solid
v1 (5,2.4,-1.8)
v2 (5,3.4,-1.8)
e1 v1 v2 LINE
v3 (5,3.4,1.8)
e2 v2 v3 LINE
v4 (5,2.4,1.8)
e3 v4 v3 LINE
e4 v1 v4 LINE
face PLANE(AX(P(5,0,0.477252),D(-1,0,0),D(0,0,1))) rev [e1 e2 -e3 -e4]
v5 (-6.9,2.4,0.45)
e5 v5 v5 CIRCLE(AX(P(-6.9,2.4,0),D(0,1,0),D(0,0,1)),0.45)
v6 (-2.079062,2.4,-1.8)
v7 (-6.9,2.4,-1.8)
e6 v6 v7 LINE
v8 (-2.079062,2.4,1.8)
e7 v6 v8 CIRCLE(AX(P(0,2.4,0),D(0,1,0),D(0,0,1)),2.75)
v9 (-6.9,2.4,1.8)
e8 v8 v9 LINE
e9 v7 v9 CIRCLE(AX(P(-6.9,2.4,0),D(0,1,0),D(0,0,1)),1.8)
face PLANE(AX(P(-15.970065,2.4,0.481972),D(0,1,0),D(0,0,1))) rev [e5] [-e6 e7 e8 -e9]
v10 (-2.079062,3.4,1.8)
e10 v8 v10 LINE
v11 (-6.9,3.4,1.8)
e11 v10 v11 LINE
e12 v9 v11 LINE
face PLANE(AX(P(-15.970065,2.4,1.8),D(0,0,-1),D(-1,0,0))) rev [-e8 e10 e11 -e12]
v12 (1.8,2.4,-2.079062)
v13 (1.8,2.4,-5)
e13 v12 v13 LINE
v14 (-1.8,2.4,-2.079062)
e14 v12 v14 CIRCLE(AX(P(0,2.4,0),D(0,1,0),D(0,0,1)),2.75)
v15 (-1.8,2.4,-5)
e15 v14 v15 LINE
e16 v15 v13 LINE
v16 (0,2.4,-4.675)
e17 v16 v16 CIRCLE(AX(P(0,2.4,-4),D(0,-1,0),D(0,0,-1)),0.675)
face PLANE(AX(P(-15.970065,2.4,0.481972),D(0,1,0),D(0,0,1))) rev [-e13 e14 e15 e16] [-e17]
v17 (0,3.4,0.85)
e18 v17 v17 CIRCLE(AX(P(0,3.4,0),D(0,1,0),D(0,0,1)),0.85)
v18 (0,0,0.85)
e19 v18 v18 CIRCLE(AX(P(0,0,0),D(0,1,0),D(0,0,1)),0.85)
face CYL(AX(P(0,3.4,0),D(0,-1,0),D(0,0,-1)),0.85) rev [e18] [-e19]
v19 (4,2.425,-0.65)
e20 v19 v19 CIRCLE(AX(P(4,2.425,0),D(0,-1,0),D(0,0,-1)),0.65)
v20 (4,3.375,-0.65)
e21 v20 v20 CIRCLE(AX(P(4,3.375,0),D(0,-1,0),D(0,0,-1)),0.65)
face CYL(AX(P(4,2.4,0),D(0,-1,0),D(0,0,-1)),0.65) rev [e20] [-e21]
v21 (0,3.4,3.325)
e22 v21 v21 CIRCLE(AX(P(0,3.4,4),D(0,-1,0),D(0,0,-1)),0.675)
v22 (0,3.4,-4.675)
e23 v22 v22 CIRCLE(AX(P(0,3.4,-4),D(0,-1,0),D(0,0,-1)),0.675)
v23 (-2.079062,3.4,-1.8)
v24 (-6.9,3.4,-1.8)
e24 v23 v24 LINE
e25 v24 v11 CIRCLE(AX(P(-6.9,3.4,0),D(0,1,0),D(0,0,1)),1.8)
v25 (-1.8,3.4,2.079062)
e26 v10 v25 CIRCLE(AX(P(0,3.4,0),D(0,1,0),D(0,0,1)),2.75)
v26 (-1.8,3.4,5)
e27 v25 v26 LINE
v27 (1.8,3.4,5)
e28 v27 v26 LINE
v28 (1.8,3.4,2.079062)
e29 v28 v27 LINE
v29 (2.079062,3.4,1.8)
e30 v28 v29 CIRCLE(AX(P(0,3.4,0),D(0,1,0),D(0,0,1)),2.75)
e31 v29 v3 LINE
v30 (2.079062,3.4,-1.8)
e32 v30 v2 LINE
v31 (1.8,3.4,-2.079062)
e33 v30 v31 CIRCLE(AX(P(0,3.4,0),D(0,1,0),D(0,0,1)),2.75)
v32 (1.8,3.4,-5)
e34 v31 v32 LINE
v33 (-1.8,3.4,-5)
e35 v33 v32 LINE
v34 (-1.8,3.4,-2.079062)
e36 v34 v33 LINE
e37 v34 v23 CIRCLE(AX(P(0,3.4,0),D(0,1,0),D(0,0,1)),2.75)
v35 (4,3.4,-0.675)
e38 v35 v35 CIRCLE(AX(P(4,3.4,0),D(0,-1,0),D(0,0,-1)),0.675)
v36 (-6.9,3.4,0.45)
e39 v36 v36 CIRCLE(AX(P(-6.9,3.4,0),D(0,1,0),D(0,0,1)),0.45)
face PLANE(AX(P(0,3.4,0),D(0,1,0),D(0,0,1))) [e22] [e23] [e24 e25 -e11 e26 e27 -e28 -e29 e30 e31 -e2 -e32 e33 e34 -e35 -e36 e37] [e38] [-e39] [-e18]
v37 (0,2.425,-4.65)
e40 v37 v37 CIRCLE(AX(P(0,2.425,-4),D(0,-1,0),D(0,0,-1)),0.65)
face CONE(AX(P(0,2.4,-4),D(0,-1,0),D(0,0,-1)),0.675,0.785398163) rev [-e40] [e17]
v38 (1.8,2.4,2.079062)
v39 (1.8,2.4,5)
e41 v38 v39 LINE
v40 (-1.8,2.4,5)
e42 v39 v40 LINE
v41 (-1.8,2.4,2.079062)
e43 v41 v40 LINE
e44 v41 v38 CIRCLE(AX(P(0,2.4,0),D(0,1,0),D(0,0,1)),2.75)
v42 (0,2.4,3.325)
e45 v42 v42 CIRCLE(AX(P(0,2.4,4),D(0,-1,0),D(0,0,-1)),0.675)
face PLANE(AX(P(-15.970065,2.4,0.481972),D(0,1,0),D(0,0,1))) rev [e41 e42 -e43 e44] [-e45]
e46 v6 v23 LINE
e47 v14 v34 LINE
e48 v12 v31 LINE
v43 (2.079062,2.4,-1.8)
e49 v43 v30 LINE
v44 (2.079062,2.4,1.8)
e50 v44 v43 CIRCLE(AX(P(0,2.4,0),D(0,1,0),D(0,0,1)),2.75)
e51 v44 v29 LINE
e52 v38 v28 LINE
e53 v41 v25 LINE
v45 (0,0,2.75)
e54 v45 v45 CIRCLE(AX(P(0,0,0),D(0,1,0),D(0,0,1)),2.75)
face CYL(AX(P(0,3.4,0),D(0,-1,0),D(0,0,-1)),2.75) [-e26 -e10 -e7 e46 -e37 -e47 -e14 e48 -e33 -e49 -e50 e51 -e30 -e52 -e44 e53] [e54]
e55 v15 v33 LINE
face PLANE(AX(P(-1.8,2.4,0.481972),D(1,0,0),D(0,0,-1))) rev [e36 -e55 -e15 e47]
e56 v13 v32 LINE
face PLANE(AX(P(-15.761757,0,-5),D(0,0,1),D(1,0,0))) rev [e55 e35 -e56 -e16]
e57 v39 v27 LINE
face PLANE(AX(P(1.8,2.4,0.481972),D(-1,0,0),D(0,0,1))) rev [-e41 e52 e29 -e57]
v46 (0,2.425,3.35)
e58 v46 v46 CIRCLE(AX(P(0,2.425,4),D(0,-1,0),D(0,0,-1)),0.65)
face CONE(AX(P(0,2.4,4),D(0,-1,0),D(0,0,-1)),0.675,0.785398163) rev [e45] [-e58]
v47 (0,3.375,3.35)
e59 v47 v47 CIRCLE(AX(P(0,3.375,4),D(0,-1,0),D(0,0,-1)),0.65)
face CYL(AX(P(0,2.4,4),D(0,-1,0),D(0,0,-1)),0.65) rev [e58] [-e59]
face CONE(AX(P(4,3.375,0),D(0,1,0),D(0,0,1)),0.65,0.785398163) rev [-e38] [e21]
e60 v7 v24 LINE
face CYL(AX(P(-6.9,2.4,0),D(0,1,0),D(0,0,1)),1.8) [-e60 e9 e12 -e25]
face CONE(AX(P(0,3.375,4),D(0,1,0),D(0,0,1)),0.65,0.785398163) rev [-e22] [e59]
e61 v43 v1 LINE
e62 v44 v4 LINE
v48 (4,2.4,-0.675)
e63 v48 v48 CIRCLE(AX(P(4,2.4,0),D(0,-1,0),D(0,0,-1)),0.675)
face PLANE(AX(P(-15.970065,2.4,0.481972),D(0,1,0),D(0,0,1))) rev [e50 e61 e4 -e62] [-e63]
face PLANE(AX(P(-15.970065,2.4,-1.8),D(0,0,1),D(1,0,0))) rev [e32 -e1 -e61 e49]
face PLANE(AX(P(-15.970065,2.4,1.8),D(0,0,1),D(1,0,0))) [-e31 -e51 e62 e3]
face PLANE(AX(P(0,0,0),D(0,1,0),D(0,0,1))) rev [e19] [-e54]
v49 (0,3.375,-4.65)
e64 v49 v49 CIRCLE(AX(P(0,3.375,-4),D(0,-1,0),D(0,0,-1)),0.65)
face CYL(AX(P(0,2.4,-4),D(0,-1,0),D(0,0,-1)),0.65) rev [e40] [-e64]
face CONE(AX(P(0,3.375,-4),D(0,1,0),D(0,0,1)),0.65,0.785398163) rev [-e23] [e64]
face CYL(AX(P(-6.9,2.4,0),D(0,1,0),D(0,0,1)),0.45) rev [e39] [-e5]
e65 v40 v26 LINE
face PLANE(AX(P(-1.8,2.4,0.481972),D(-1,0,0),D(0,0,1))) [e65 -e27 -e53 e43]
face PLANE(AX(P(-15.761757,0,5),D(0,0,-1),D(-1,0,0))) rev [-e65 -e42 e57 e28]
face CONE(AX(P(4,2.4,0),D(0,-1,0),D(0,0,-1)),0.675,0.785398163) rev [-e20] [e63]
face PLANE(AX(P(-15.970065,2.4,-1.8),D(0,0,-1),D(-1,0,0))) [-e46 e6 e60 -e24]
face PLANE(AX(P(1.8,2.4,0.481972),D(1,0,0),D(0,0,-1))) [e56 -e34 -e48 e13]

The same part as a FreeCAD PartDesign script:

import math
import FreeCAD as App
import Part
import Sketcher


def add_polygon(sketch, points):
    """Adds a closed chain of lines whose ends are joined by coincident constraints."""
    first, n = sketch.GeometryCount, len(points)
    for a, b in zip(points, points[1:] + points[:1]):
        sketch.addGeometry(Part.LineSegment(App.Vector(*a, 0), App.Vector(*b, 0)), False)
    for i in range(n):
        sketch.addConstraint(Sketcher.Constraint("Coincident", first + i, 2, first + (i + 1) % n, 1))

doc = App.newDocument("Part")
body = doc.addObject("PartDesign::Body", "Body")

# Sketch on XZ plane
sketch1 = body.newObject("Sketcher::SketchObject", "Sketch")
sketch1.AttachmentSupport = (doc.getObject("XZ_Plane"), [""])
sketch1.MapMode = "FlatFace"
sketch1.addGeometry(Part.Circle(App.Vector(0, 0, 0), App.Vector(0, 0, 1), 2.8), False)
sketch1.addGeometry(Part.Circle(App.Vector(0, 0, 0), App.Vector(0, 0, 1), 0.8), False)
sketch1.addConstraint(Sketcher.Constraint("Coincident", 0, 3, -1, 1))
sketch1.addConstraint(Sketcher.Constraint("Coincident", 1, 3, -1, 1))
sketch1.addConstraint(Sketcher.Constraint("Diameter", 0, 5.5))
sketch1.addConstraint(Sketcher.Constraint("Diameter", 1, 1.7))
pad1 = body.newObject("PartDesign::Pad", "Pad")
pad1.Profile = sketch1
pad1.Length = 3.4
pad1.Reversed = True

# Sketch on XZ plane
sketch2 = body.newObject("Sketcher::SketchObject", "Sketch001")
sketch2.AttachmentSupport = (doc.getObject("XZ_Plane"), [""])
sketch2.MapMode = "FlatFace"
sketch2.AttachmentOffset = App.Placement(App.Vector(0, 0, -3.4), App.Rotation())
sketch2.addGeometry(Part.LineSegment(App.Vector(6.9, -1.8, 0), App.Vector(2.08, -1.8, 0)), False)
sketch2.addGeometry(Part.ArcOfCircle(Part.Circle(App.Vector(0, 0, 0), App.Vector(0, 0, 1), 2.75), math.radians(-41), math.radians(41)), False)
sketch2.addGeometry(Part.LineSegment(App.Vector(2.08, 1.8, 0), App.Vector(6.9, 1.8, 0)), False)
sketch2.addGeometry(Part.ArcOfCircle(Part.Circle(App.Vector(6.9, 0, 0), App.Vector(0, 0, 1), 1.8), math.radians(-90), math.radians(90)), False)
sketch2.addGeometry(Part.Circle(App.Vector(6.9, 0, 0), App.Vector(0, 0, 1), 0.45), False)
sketch2.addGeometry(Part.ArcOfCircle(Part.Circle(App.Vector(0, 0, 0), App.Vector(0, 0, 1), 2.75), math.radians(-131), math.radians(-49)), False)
sketch2.addGeometry(Part.LineSegment(App.Vector(1.8, -2.08, 0), App.Vector(1.8, -6.9, 0)), False)
sketch2.addGeometry(Part.ArcOfCircle(Part.Circle(App.Vector(0, -6.9, 0), App.Vector(0, 0, 1), 1.8), math.radians(180), math.radians(360)), False)
sketch2.addGeometry(Part.LineSegment(App.Vector(-1.8, -6.9, 0), App.Vector(-1.8, -2.08, 0)), False)
sketch2.addGeometry(Part.Circle(App.Vector(0, -6.9, 0), App.Vector(0, 0, 1), 0.45), False)
sketch2.addGeometry(Part.LineSegment(App.Vector(1.8, 6.9, 0), App.Vector(1.8, 2.08, 0)), False)
sketch2.addGeometry(Part.ArcOfCircle(Part.Circle(App.Vector(0, 0, 0), App.Vector(0, 0, 1), 2.75), math.radians(49), math.radians(131)), False)
sketch2.addGeometry(Part.LineSegment(App.Vector(-1.8, 2.08, 0), App.Vector(-1.8, 6.9, 0)), False)
sketch2.addGeometry(Part.ArcOfCircle(Part.Circle(App.Vector(0, 6.9, 0), App.Vector(0, 0, 1), 1.8), math.radians(0), math.radians(180)), False)
sketch2.addGeometry(Part.Circle(App.Vector(0, 6.9, 0), App.Vector(0, 0, 1), 0.45), False)
sketch2.addGeometry(Part.ArcOfCircle(Part.Circle(App.Vector(0, 0, 0), App.Vector(0, 0, 1), 2.75), math.radians(139), math.radians(221)), False)
sketch2.addGeometry(Part.LineSegment(App.Vector(-2.08, -1.8, 0), App.Vector(-6.9, -1.8, 0)), False)
sketch2.addGeometry(Part.ArcOfCircle(Part.Circle(App.Vector(-6.9, 0, 0), App.Vector(0, 0, 1), 1.8), math.radians(90), math.radians(270)), False)
sketch2.addGeometry(Part.LineSegment(App.Vector(-6.9, 1.8, 0), App.Vector(-2.08, 1.8, 0)), False)
sketch2.addGeometry(Part.Circle(App.Vector(-6.9, 0, 0), App.Vector(0, 0, 1), 0.45), False)
sketch2.addConstraint(Sketcher.Constraint("Coincident", 0, 2, 1, 1))
sketch2.addConstraint(Sketcher.Constraint("Coincident", 1, 2, 2, 1))
sketch2.addConstraint(Sketcher.Constraint("Tangent", 2, 2, 3, 2))
sketch2.addConstraint(Sketcher.Constraint("Tangent", 3, 1, 0, 1))
sketch2.addConstraint(Sketcher.Constraint("Coincident", 5, 2, 6, 1))
sketch2.addConstraint(Sketcher.Constraint("Tangent", 6, 2, 7, 2))
sketch2.addConstraint(Sketcher.Constraint("Tangent", 7, 1, 8, 1))
sketch2.addConstraint(Sketcher.Constraint("Coincident", 8, 2, 5, 1))
sketch2.addConstraint(Sketcher.Constraint("Coincident", 10, 2, 11, 1))
sketch2.addConstraint(Sketcher.Constraint("Coincident", 11, 2, 12, 1))
sketch2.addConstraint(Sketcher.Constraint("Tangent", 12, 2, 13, 2))
sketch2.addConstraint(Sketcher.Constraint("Tangent", 13, 1, 10, 1))
sketch2.addConstraint(Sketcher.Constraint("Coincident", 15, 2, 16, 1))
sketch2.addConstraint(Sketcher.Constraint("Tangent", 16, 2, 17, 2))
sketch2.addConstraint(Sketcher.Constraint("Tangent", 17, 1, 18, 1))
sketch2.addConstraint(Sketcher.Constraint("Coincident", 18, 2, 15, 1))
sketch2.addConstraint(Sketcher.Constraint("Horizontal", 0))
sketch2.addConstraint(Sketcher.Constraint("Horizontal", 2))
sketch2.addConstraint(Sketcher.Constraint("Vertical", 6))
sketch2.addConstraint(Sketcher.Constraint("Vertical", 8))
sketch2.addConstraint(Sketcher.Constraint("Vertical", 10))
sketch2.addConstraint(Sketcher.Constraint("Vertical", 12))
sketch2.addConstraint(Sketcher.Constraint("Horizontal", 16))
sketch2.addConstraint(Sketcher.Constraint("Horizontal", 18))
sketch2.addConstraint(Sketcher.Constraint("Coincident", 1, 3, -1, 1))
sketch2.addConstraint(Sketcher.Constraint("Coincident", 5, 3, -1, 1))
sketch2.addConstraint(Sketcher.Constraint("Coincident", 11, 3, -1, 1))
sketch2.addConstraint(Sketcher.Constraint("Coincident", 15, 3, -1, 1))
sketch2.addConstraint(Sketcher.Constraint("Coincident", 4, 3, 3, 3))
sketch2.addConstraint(Sketcher.Constraint("Coincident", 9, 3, 7, 3))
sketch2.addConstraint(Sketcher.Constraint("Coincident", 14, 3, 13, 3))
sketch2.addConstraint(Sketcher.Constraint("Coincident", 19, 3, 17, 3))
sketch2.addConstraint(Sketcher.Constraint("Equal", 1, 5))
sketch2.addConstraint(Sketcher.Constraint("Equal", 3, 7))
sketch2.addConstraint(Sketcher.Constraint("Equal", 4, 9))
sketch2.addConstraint(Sketcher.Constraint("Equal", 5, 11))
sketch2.addConstraint(Sketcher.Constraint("Equal", 7, 13))
sketch2.addConstraint(Sketcher.Constraint("Equal", 9, 14))
sketch2.addConstraint(Sketcher.Constraint("Equal", 11, 15))
sketch2.addConstraint(Sketcher.Constraint("Equal", 13, 17))
sketch2.addConstraint(Sketcher.Constraint("Equal", 14, 19))
sketch2.addConstraint(Sketcher.Constraint("Symmetric", 7, 3, 13, 3, -1, 1))
sketch2.addConstraint(Sketcher.Constraint("Symmetric", 3, 3, 17, 3, -1, 1))
sketch2.addConstraint(Sketcher.Constraint("PointOnObject", 3, 3, -1))
sketch2.addConstraint(Sketcher.Constraint("PointOnObject", 7, 3, -2))
sketch2.addConstraint(Sketcher.Constraint("Equal", 18, 6))
sketch2.addConstraint(Sketcher.Constraint("Diameter", 4, 0.9))
sketch2.addConstraint(Sketcher.Constraint("Radius", 3, 1.8))
sketch2.addConstraint(Sketcher.Constraint("Radius", 1, 2.75))
sketch2.addConstraint(Sketcher.Constraint("DistanceX", -1, 1, 3, 3, 6.9))
pad2 = body.newObject("PartDesign::Pad", "Pad001")
pad2.Profile = sketch2
pad2.Length = 1

# Sketch on XZ plane
sketch3 = body.newObject("Sketcher::SketchObject", "Sketch002")
sketch3.AttachmentSupport = (doc.getObject("XZ_Plane"), [""])
sketch3.MapMode = "FlatFace"
sketch3.AttachmentOffset = App.Placement(App.Vector(0, 0, -3.4), App.Rotation())
sketch3.addGeometry(Part.LineSegment(App.Vector(6.9, -1.8, 0), App.Vector(5, -1.8, 0)), False)
sketch3.addGeometry(Part.LineSegment(App.Vector(5, -1.8, 0), App.Vector(5, 1.8, 0)), False)
sketch3.addGeometry(Part.LineSegment(App.Vector(5, 1.8, 0), App.Vector(6.9, 1.8, 0)), False)
sketch3.addGeometry(Part.ArcOfCircle(Part.Circle(App.Vector(6.9, 0, 0), App.Vector(0, 0, 1), 1.8), math.radians(-90), math.radians(90)), False)
sketch3.addGeometry(Part.Circle(App.Vector(6.9, 0, 0), App.Vector(0, 0, 1), 0.45), False)
sketch3.addGeometry(Part.LineSegment(App.Vector(1.8, 5, 0), App.Vector(-1.8, 5, 0)), False)
sketch3.addGeometry(Part.LineSegment(App.Vector(-1.8, 5, 0), App.Vector(-1.8, 6.9, 0)), False)
sketch3.addGeometry(Part.ArcOfCircle(Part.Circle(App.Vector(0, 6.9, 0), App.Vector(0, 0, 1), 1.8), math.radians(0), math.radians(180)), False)
sketch3.addGeometry(Part.LineSegment(App.Vector(1.8, 6.9, 0), App.Vector(1.8, 5, 0)), False)
sketch3.addGeometry(Part.Circle(App.Vector(0, 6.9, 0), App.Vector(0, 0, 1), 0.45), False)
sketch3.addGeometry(Part.LineSegment(App.Vector(-1.8, -6.9, 0), App.Vector(-1.8, -5, 0)), False)
sketch3.addGeometry(Part.LineSegment(App.Vector(-1.8, -5, 0), App.Vector(1.8, -5, 0)), False)
sketch3.addGeometry(Part.LineSegment(App.Vector(1.8, -5, 0), App.Vector(1.8, -6.9, 0)), False)
sketch3.addGeometry(Part.ArcOfCircle(Part.Circle(App.Vector(0, -6.9, 0), App.Vector(0, 0, 1), 1.8), math.radians(180), math.radians(360)), False)
sketch3.addGeometry(Part.Circle(App.Vector(0, -6.9, 0), App.Vector(0, 0, 1), 0.45), False)
sketch3.addConstraint(Sketcher.Constraint("Coincident", 0, 2, 1, 1))
sketch3.addConstraint(Sketcher.Constraint("Coincident", 1, 2, 2, 1))
sketch3.addConstraint(Sketcher.Constraint("Tangent", 2, 2, 3, 2))
sketch3.addConstraint(Sketcher.Constraint("Tangent", 3, 1, 0, 1))
sketch3.addConstraint(Sketcher.Constraint("Coincident", 5, 2, 6, 1))
sketch3.addConstraint(Sketcher.Constraint("Tangent", 6, 2, 7, 2))
sketch3.addConstraint(Sketcher.Constraint("Tangent", 7, 1, 8, 1))
sketch3.addConstraint(Sketcher.Constraint("Coincident", 8, 2, 5, 1))
sketch3.addConstraint(Sketcher.Constraint("Coincident", 10, 2, 11, 1))
sketch3.addConstraint(Sketcher.Constraint("Coincident", 11, 2, 12, 1))
sketch3.addConstraint(Sketcher.Constraint("Tangent", 12, 2, 13, 2))
sketch3.addConstraint(Sketcher.Constraint("Tangent", 13, 1, 10, 1))
sketch3.addConstraint(Sketcher.Constraint("Horizontal", 0))
sketch3.addConstraint(Sketcher.Constraint("Vertical", 1))
sketch3.addConstraint(Sketcher.Constraint("Horizontal", 2))
sketch3.addConstraint(Sketcher.Constraint("Horizontal", 5))
sketch3.addConstraint(Sketcher.Constraint("Vertical", 6))
sketch3.addConstraint(Sketcher.Constraint("Vertical", 8))
sketch3.addConstraint(Sketcher.Constraint("Vertical", 10))
sketch3.addConstraint(Sketcher.Constraint("Horizontal", 11))
sketch3.addConstraint(Sketcher.Constraint("Vertical", 12))
sketch3.addConstraint(Sketcher.Constraint("Coincident", 4, 3, 3, 3))
sketch3.addConstraint(Sketcher.Constraint("Coincident", 9, 3, 7, 3))
sketch3.addConstraint(Sketcher.Constraint("Coincident", 14, 3, 13, 3))
sketch3.addConstraint(Sketcher.Constraint("Equal", 3, 7))
sketch3.addConstraint(Sketcher.Constraint("Equal", 4, 9))
sketch3.addConstraint(Sketcher.Constraint("Equal", 7, 13))
sketch3.addConstraint(Sketcher.Constraint("Equal", 9, 14))
sketch3.addConstraint(Sketcher.Constraint("Symmetric", 7, 3, 13, 3, -1, 1))
sketch3.addConstraint(Sketcher.Constraint("Symmetric", 5, 2, 10, 2, -1))
sketch3.addConstraint(Sketcher.Constraint("PointOnObject", 3, 3, -1))
sketch3.addConstraint(Sketcher.Constraint("Equal", 2, 6))
sketch3.addConstraint(Sketcher.Constraint("Diameter", 4, 0.9))
sketch3.addConstraint(Sketcher.Constraint("Radius", 3, 1.8))
sketch3.addConstraint(Sketcher.Constraint("DistanceX", 0, 2, 0, 1, 1.9))
sketch3.addConstraint(Sketcher.Constraint("DistanceX", -1, 1, 0, 2, 5.0))
sketch3.addConstraint(Sketcher.Constraint("DistanceY", -1, 1, 5, 2, 5.0))
pocket1 = body.newObject("PartDesign::Pocket", "Pocket")
pocket1.Profile = sketch3
pocket1.Type = "ThroughAll"
pocket1.Reversed = True

# Sketch on YZ plane
sketch4 = body.newObject("Sketcher::SketchObject", "Sketch003")
sketch4.AttachmentSupport = (doc.getObject("YZ_Plane"), [""])
sketch4.MapMode = "FlatFace"
add_polygon(sketch4, [(3.4, -4), (2.4, -4), (2.4, -4.675), (2.425, -4.65), (3.375, -4.65), (3.4, -4.675)])  # lines 0-5
sketch4.addGeometry(Part.LineSegment(App.Vector(2.4, -4, 0), App.Vector(3.4, -4, 0)), True)  # axis
sketch4.addConstraint(Sketcher.Constraint("Horizontal", 0))
sketch4.addConstraint(Sketcher.Constraint("Vertical", 1))
sketch4.addConstraint(Sketcher.Constraint("Horizontal", 3))
sketch4.addConstraint(Sketcher.Constraint("Vertical", 5))
sketch4.addConstraint(Sketcher.Constraint("Horizontal", 6))
sketch4.addConstraint(Sketcher.Constraint("Coincident", 6, 1, 0, 2))
sketch4.addConstraint(Sketcher.Constraint("Perpendicular", 2, 4))
sketch4.addConstraint(Sketcher.Constraint("Horizontal", 1, 2, 4, 2))
sketch4.addConstraint(Sketcher.Constraint("Vertical", 4, 2, 6, 2))
sketch4.addConstraint(Sketcher.Constraint("Equal", 2, 4))
sketch4.addConstraint(Sketcher.Constraint("DistanceX", 0, 2, 0, 1, 1.0))
sketch4.addConstraint(Sketcher.Constraint("DistanceY", 0, 2, -1, 1, 4.0))
sketch4.addConstraint(Sketcher.Constraint("DistanceX", 3, 1, 3, 2, 0.95))
sketch4.addConstraint(Sketcher.Constraint("DistanceX", -1, 1, 0, 2, 2.4))
sketch4.addConstraint(Sketcher.Constraint("DistanceY", 1, 2, 1, 1, 0.675))
groove = body.newObject("PartDesign::Groove", "Groove")
groove.Profile = sketch4
groove.ReferenceAxis = (sketch4, ["Axis0"])
groove.Angle = 360
doc.recompute()

datumline = body.newObject("PartDesign::Line", "DatumLine")
datumline.Placement = App.Placement(App.Vector(0, 0, 0), App.Rotation(App.Vector(0, 0, 1), App.Vector(0.707106781, 0, 0.707106781)))
linearpattern = body.newObject("PartDesign::LinearPattern", "LinearPattern")
linearpattern.Originals = [groove]
linearpattern.Direction = (datumline, [""])
linearpattern.Mode = "offset"
linearpattern.Offset = 5.656854
linearpattern.Occurrences = 2
body.Tip = linearpattern
doc.recompute()

linearpattern2 = body.newObject("PartDesign::LinearPattern", "LinearPattern001")
linearpattern2.Originals = [groove]
linearpattern2.Direction = (doc.getObject("Z_Axis"), [""])
linearpattern2.Mode = "offset"
linearpattern2.Offset = 8
linearpattern2.Occurrences = 2
body.Tip = linearpattern2

doc.recompute()
